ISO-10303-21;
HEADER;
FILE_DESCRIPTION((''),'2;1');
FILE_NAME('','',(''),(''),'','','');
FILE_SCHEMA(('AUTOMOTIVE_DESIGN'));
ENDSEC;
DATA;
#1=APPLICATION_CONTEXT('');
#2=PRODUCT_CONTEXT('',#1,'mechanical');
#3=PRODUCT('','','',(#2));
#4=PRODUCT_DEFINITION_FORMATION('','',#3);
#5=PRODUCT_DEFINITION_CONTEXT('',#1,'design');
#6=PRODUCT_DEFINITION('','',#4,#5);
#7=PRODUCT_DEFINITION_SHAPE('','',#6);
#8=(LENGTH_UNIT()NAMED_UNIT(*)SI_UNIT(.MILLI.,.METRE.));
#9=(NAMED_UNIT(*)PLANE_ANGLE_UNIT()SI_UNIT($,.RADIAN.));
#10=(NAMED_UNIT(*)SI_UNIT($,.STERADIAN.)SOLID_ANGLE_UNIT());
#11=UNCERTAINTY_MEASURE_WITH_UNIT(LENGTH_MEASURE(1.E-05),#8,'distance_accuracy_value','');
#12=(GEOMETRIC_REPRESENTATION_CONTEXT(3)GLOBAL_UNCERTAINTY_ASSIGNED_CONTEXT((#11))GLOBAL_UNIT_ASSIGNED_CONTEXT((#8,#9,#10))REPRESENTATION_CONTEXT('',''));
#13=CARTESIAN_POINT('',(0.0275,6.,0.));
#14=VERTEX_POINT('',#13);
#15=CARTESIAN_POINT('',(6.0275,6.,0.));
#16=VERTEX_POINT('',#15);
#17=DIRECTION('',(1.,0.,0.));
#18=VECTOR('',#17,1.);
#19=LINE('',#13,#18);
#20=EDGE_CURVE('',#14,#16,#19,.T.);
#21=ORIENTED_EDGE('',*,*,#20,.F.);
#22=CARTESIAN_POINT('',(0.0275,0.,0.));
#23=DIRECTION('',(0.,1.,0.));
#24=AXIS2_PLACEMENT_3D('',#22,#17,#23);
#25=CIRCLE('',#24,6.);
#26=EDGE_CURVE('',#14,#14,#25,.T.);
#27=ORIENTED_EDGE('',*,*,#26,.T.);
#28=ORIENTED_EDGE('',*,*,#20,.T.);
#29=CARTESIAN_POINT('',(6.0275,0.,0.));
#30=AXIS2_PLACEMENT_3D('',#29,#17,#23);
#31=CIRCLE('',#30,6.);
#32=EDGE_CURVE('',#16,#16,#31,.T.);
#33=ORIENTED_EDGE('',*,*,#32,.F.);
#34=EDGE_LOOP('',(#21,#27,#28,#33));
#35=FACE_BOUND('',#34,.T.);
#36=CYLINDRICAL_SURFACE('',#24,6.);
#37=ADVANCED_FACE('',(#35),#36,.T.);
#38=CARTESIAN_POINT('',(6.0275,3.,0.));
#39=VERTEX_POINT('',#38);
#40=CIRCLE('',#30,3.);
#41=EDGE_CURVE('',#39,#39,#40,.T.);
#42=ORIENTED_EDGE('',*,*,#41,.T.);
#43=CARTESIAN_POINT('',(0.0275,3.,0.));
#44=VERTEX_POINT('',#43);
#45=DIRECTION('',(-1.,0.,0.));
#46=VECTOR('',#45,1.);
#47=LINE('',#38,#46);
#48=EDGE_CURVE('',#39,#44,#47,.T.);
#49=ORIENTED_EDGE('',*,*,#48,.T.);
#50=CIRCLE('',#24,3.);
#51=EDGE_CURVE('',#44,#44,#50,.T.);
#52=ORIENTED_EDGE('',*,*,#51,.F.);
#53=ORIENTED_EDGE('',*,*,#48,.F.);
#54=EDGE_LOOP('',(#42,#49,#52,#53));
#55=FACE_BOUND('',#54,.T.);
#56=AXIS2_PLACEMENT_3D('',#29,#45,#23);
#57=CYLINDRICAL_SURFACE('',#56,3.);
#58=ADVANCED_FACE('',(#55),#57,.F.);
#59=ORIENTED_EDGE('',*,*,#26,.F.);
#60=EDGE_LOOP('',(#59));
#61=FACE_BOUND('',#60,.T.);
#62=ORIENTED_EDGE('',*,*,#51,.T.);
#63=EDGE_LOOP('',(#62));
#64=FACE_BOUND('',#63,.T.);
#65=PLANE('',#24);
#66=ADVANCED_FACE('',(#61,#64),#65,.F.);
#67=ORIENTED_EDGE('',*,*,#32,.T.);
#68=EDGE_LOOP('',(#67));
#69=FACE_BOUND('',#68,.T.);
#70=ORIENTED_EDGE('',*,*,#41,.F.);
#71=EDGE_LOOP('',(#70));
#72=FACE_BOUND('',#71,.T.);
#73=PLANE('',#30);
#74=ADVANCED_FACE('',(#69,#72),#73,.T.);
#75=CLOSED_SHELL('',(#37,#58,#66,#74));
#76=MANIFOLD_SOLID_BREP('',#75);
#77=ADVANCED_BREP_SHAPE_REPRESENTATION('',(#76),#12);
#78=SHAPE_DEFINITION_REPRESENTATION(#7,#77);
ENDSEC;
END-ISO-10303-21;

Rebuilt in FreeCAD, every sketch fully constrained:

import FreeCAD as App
import Part
import Sketcher
Q = App.Units.Quantity

doc = App.newDocument("Part")
body = doc.addObject("PartDesign::Body", "Body")

sketch1 = body.newObject("Sketcher::SketchObject", "Sketch")
sketch1.AttachmentSupport = (doc.getObject("XY_Plane"), [""])
sketch1.MapMode = "FlatFace"
sketch1.addGeometry([
    Part.LineSegment(App.Vector(0, 6, 0), App.Vector(0, 3, 0)),
    Part.LineSegment(App.Vector(0, 3, 0), App.Vector(6, 3, 0)),
    Part.LineSegment(App.Vector(6, 3, 0), App.Vector(6, 6, 0)),
    Part.LineSegment(App.Vector(6, 6, 0), App.Vector(0, 6, 0)),
], False)
sketch1.addConstraint([
    Sketcher.Constraint("Coincident", 0, 2, 1, 1),
    Sketcher.Constraint("Coincident", 1, 2, 2, 1),
    Sketcher.Constraint("Coincident", 2, 2, 3, 1),
    Sketcher.Constraint("Coincident", 3, 2, 0, 1),
    Sketcher.Constraint("Vertical", 0),
    Sketcher.Constraint("Horizontal", 1),
    Sketcher.Constraint("Vertical", 2),
    Sketcher.Constraint("Horizontal", 3),
    Sketcher.Constraint("DistanceX", 1, 1, 1, 2, Q("6 mm")),
    Sketcher.Constraint("DistanceY", -1, 1, 2, 2, Q("6 mm")),
    Sketcher.Constraint("DistanceY", 0, 2, 0, 1, Q("3 mm")),
    Sketcher.Constraint("DistanceX", -1, 1, 0, 2, Q("0.0275 mm")),
])
revolution = body.newObject("PartDesign::Revolution", "Revolution")
revolution.Profile = sketch1
revolution.ReferenceAxis = (sketch1, ["H_Axis"])
revolution.Angle = 360

doc.recompute()
